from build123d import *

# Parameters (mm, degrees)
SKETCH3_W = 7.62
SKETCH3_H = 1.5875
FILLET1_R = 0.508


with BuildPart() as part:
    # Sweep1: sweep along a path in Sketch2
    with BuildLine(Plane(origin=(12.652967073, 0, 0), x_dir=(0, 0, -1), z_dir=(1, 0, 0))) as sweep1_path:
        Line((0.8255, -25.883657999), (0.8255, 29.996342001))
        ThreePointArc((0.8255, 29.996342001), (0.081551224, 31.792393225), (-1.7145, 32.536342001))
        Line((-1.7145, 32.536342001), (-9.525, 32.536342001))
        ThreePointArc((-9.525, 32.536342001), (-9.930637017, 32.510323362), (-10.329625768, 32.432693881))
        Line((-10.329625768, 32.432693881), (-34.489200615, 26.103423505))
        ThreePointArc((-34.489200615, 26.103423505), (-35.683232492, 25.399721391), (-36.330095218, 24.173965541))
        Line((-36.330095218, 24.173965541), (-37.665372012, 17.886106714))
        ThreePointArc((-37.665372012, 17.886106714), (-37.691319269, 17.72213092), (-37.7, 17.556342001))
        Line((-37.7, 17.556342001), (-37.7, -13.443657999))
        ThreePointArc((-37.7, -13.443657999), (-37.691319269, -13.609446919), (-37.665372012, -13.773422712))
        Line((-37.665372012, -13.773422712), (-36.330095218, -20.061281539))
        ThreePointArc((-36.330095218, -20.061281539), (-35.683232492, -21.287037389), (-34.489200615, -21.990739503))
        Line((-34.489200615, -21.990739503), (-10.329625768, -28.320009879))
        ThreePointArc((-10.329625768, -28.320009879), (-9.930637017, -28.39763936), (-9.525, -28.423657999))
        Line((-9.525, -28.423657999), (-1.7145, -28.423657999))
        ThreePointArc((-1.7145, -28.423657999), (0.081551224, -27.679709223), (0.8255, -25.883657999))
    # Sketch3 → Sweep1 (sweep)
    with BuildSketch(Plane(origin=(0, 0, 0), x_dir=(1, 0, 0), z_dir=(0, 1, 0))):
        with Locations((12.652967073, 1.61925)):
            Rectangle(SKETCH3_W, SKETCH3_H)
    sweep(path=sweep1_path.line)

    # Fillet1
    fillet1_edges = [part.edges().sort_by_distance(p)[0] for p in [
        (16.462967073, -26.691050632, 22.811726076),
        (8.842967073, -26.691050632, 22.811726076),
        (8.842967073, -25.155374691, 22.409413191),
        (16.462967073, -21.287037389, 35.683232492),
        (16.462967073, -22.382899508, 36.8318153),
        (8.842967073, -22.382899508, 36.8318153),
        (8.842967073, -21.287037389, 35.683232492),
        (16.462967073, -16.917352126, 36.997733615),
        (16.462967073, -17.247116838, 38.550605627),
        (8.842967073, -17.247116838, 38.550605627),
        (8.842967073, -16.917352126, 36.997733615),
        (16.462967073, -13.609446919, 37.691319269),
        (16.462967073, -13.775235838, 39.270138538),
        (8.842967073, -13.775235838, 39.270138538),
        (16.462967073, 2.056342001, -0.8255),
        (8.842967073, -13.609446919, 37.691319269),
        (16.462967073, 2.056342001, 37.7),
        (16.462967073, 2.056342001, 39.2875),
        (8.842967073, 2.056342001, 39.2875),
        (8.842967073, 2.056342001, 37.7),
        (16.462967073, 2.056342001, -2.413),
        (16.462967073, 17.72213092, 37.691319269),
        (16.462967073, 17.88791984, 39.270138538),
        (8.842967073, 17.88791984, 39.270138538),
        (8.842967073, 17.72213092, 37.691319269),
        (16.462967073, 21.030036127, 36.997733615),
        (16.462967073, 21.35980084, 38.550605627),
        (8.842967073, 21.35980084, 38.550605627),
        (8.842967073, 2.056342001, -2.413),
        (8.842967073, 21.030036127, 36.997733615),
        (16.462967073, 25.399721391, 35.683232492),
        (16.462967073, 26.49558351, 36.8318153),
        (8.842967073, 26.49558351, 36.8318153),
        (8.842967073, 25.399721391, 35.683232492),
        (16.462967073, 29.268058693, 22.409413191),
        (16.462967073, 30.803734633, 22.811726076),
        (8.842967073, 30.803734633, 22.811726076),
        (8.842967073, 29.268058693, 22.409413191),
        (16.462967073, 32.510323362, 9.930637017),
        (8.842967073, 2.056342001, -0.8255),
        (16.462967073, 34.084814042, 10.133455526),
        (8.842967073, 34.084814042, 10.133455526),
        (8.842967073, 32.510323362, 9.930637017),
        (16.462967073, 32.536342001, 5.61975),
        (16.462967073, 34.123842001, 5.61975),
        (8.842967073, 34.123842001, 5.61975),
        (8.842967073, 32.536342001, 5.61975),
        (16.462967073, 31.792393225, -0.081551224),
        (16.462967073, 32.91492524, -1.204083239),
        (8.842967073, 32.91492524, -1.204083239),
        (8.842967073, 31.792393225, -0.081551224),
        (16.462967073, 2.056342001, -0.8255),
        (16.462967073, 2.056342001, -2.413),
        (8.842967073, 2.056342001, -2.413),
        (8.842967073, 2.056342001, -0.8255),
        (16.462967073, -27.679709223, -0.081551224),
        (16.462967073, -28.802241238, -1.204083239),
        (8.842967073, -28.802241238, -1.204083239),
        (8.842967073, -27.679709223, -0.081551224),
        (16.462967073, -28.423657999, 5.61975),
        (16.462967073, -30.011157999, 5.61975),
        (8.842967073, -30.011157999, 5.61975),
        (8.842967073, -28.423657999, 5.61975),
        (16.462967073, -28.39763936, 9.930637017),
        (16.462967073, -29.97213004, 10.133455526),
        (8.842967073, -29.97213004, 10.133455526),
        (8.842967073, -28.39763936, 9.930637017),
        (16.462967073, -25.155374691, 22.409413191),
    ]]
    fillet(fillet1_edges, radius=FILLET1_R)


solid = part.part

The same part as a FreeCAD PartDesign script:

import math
import FreeCAD as App
import Part
import Sketcher
Q = App.Units.Quantity

doc = App.newDocument("Part")
params = doc.addObject("Spreadsheet::Sheet", "Params")
for row, (alias, value) in enumerate([
    ("sketch1_width", "0.3 in"),
    ("sketch1_height", "0.0625 in"),
    ("sketch2_radius", "0.1 in"),
    ("sketch2_width", "2.2 in"),
    ("sketch2_radius2", "0.125 in"),
    ("sketch2_radius3", "0.0625 in"),
    ("fillet_radius", "0.02 in"),
], start=1):
    params.set(f"A{row}", alias)
    params.set(f"B{row}", "=" + value)
    params.setAlias(f"B{row}", alias)

body = doc.addObject("PartDesign::Body", "Body")

sketch1 = body.newObject("Sketcher::SketchObject", "Sketch")
sketch1.AttachmentSupport = (doc.getObject("XZ_Plane"), [""])
sketch1.MapMode = "FlatFace"
sketch1.addGeometry([
    Part.LineSegment(App.Vector(8.8, -2.4, 0), App.Vector(8.8, -0.8, 0)),
    Part.LineSegment(App.Vector(8.8, -0.8, 0), App.Vector(16.5, -0.8, 0)),
    Part.LineSegment(App.Vector(16.5, -0.8, 0), App.Vector(16.5, -2.4, 0)),
    Part.LineSegment(App.Vector(16.5, -2.4, 0), App.Vector(8.8, -2.4, 0)),
], False)
sketch1.addConstraint([
    Sketcher.Constraint("Coincident", 0, 2, 1, 1),
    Sketcher.Constraint("Coincident", 1, 2, 2, 1),
    Sketcher.Constraint("Coincident", 2, 2, 3, 1),
    Sketcher.Constraint("Coincident", 3, 2, 0, 1),
    Sketcher.Constraint("Vertical", 0),
    Sketcher.Constraint("Horizontal", 1),
    Sketcher.Constraint("Vertical", 2),
    Sketcher.Constraint("Horizontal", 3),
    Sketcher.Constraint("DistanceX", 1, 1, 1, 2, Q("0.3 in")),
    Sketcher.Constraint("DistanceY", 0, 1, 0, 2, Q("0.0625 in")),
    Sketcher.Constraint("DistanceY", 2, 2, -1, 1, Q("0.095 in")),
    Sketcher.Constraint("DistanceX", -1, 1, 0, 2, 8.842967),
])
sketch1.setExpression("Constraints[8]", "Params.sketch1_width")
sketch1.setExpression("Constraints[9]", "Params.sketch1_height")

sketch2 = body.newObject("Sketcher::SketchObject", "Sketch001")
sketch2.AttachmentSupport = (doc.getObject("YZ_Plane"), [""])
sketch2.MapMode = "FlatFace"
sketch2.AttachmentOffset = App.Placement(App.Vector(0, 0, 12.652967), App.Rotation())
sketch2.addGeometry([
    Part.LineSegment(App.Vector(-25.88, -0.83, 0), App.Vector(30, -0.83, 0)),
    Part.ArcOfCircle(Part.Circle(App.Vector(30, 1.71, 0), App.Vector(0, 0, 1), 2.54), math.radians(-90), math.radians(0)),
    Part.LineSegment(App.Vector(32.54, 1.71, 0), App.Vector(32.54, 9.53, 0)),
    Part.ArcOfCircle(Part.Circle(App.Vector(29.36, 9.53, 0), App.Vector(0, 0, 1), 3.17), math.radians(0), math.radians(14.68)),
    Part.LineSegment(App.Vector(32.43, 10.33, 0), App.Vector(26.1, 34.49, 0)),
    Part.ArcOfCircle(Part.Circle(App.Vector(23.65, 33.85, 0), App.Vector(0, 0, 1), 2.54), math.radians(15), math.radians(78)),
    Part.LineSegment(App.Vector(24.17, 36.33, 0), App.Vector(17.89, 37.67, 0)),
    Part.ArcOfCircle(Part.Circle(App.Vector(17.56, 36.11, 0), App.Vector(0, 0, 1), 1.59), math.radians(78.01), math.radians(90)),
    Part.LineSegment(App.Vector(17.56, 37.7, 0), App.Vector(-13.44, 37.7, 0)),
    Part.ArcOfCircle(Part.Circle(App.Vector(-13.44, 36.11, 0), App.Vector(0, 0, 1), 1.59), math.radians(90), math.radians(101.99)),
    Part.LineSegment(App.Vector(-13.77, 37.67, 0), App.Vector(-20.06, 36.33, 0)),
    Part.ArcOfCircle(Part.Circle(App.Vector(-19.53, 33.85, 0), App.Vector(0, 0, 1), 2.54), math.radians(102), math.radians(165)),
    Part.LineSegment(App.Vector(-21.99, 34.49, 0), App.Vector(-28.32, 10.33, 0)),
    Part.ArcOfCircle(Part.Circle(App.Vector(-25.25, 9.53, 0), App.Vector(0, 0, 1), 3.17), math.radians(165.32), math.radians(180)),
    Part.LineSegment(App.Vector(-28.42, 9.53, 0), App.Vector(-28.42, 1.71, 0)),
    Part.ArcOfCircle(Part.Circle(App.Vector(-25.88, 1.71, 0), App.Vector(0, 0, 1), 2.54), math.radians(-180), math.radians(-90)),
], False)
sketch2.addConstraint([
    Sketcher.Constraint("Tangent", 0, 2, 1, 1),
    Sketcher.Constraint("Tangent", 1, 2, 2, 1),
    Sketcher.Constraint("Tangent", 2, 2, 3, 1),
    Sketcher.Constraint("Tangent", 3, 2, 4, 1),
    Sketcher.Constraint("Tangent", 4, 2, 5, 1),
    Sketcher.Constraint("Tangent", 5, 2, 6, 1),
    Sketcher.Constraint("Tangent", 6, 2, 7, 1),
    Sketcher.Constraint("Tangent", 7, 2, 8, 1),
    Sketcher.Constraint("Tangent", 8, 2, 9, 1),
    Sketcher.Constraint("Tangent", 9, 2, 10, 1),
    Sketcher.Constraint("Tangent", 10, 2, 11, 1),
    Sketcher.Constraint("Tangent", 11, 2, 12, 1),
    Sketcher.Constraint("Tangent", 12, 2, 13, 1),
    Sketcher.Constraint("Tangent", 13, 2, 14, 1),
    Sketcher.Constraint("Tangent", 14, 2, 15, 1),
    Sketcher.Constraint("Tangent", 15, 2, 0, 1),
    Sketcher.Constraint("Horizontal", 0),
    Sketcher.Constraint("Vertical", 2),
    Sketcher.Constraint("Horizontal", 8),
    Sketcher.Constraint("Vertical", 14),
    Sketcher.Constraint("Equal", 1, 5),
    Sketcher.Constraint("Equal", 7, 9),
    Sketcher.Constraint("Equal", 5, 11),
    Sketcher.Constraint("Equal", 3, 13),
    Sketcher.Constraint("Equal", 11, 15),
    Sketcher.Constraint("Horizontal", 5, 3, 11, 3),
    Sketcher.Constraint("Horizontal", 3, 3, 13, 3),
    Sketcher.Constraint("Horizontal", 6, 2, 9, 2),
    Sketcher.Constraint("Horizontal", 4, 2, 11, 2),
    Sketcher.Constraint("Radius", 1, Q("0.1 in")),
    Sketcher.Constraint("DistanceX", 0, 1, 0, 2, Q("2.2 in")),
    Sketcher.Constraint("Radius", 3, Q("0.125 in")),
    Sketcher.Constraint("Radius", 7, Q("0.0625 in")),
    Sketcher.Constraint("DistanceX", 11, 3, 5, 3, Q("1.7 in")),
    Sketcher.Constraint("DistanceY", 2, 1, 2, 2, Q("0.3075 in")),
    Sketcher.Constraint("DistanceY", -1, 1, 3, 3, Q("0.375 in")),
    Sketcher.Constraint("DistanceY", 1, 3, 5, 3, Q("1.265 in")),
    Sketcher.Constraint("DistanceX", 8, 2, 8, 1, 31.0),
    Sketcher.Constraint("DistanceY", -1, 1, 7, 3, 36.1125),
    Sketcher.Constraint("DistanceX", -1, 1, 1, 3, 29.996342),
])
sketch2.setExpression("Constraints[29]", "Params.sketch2_radius")
sketch2.setExpression("Constraints[30]", "Params.sketch2_width")
sketch2.setExpression("Constraints[31]", "Params.sketch2_radius2")
sketch2.setExpression("Constraints[32]", "Params.sketch2_radius3")
doc.recompute()

additivepipe = body.newObject("PartDesign::AdditivePipe", "AdditivePipe")
additivepipe.Profile = sketch1
additivepipe.Spine = (sketch2, ["Edge1", "Edge2", "Edge3", "Edge4", "Edge5", "Edge6", "Edge7", "Edge8", "Edge9", "Edge10", "Edge11", "Edge12", "Edge13", "Edge14", "Edge15", "Edge16"])
doc.recompute()

fillet = body.newObject("PartDesign::Fillet", "Fillet")
fillet.Base = (additivepipe, ["Edge1"])
fillet.UseAllEdges = True
fillet.setExpression("Radius", "Params.fillet_radius")

doc.recompute()
